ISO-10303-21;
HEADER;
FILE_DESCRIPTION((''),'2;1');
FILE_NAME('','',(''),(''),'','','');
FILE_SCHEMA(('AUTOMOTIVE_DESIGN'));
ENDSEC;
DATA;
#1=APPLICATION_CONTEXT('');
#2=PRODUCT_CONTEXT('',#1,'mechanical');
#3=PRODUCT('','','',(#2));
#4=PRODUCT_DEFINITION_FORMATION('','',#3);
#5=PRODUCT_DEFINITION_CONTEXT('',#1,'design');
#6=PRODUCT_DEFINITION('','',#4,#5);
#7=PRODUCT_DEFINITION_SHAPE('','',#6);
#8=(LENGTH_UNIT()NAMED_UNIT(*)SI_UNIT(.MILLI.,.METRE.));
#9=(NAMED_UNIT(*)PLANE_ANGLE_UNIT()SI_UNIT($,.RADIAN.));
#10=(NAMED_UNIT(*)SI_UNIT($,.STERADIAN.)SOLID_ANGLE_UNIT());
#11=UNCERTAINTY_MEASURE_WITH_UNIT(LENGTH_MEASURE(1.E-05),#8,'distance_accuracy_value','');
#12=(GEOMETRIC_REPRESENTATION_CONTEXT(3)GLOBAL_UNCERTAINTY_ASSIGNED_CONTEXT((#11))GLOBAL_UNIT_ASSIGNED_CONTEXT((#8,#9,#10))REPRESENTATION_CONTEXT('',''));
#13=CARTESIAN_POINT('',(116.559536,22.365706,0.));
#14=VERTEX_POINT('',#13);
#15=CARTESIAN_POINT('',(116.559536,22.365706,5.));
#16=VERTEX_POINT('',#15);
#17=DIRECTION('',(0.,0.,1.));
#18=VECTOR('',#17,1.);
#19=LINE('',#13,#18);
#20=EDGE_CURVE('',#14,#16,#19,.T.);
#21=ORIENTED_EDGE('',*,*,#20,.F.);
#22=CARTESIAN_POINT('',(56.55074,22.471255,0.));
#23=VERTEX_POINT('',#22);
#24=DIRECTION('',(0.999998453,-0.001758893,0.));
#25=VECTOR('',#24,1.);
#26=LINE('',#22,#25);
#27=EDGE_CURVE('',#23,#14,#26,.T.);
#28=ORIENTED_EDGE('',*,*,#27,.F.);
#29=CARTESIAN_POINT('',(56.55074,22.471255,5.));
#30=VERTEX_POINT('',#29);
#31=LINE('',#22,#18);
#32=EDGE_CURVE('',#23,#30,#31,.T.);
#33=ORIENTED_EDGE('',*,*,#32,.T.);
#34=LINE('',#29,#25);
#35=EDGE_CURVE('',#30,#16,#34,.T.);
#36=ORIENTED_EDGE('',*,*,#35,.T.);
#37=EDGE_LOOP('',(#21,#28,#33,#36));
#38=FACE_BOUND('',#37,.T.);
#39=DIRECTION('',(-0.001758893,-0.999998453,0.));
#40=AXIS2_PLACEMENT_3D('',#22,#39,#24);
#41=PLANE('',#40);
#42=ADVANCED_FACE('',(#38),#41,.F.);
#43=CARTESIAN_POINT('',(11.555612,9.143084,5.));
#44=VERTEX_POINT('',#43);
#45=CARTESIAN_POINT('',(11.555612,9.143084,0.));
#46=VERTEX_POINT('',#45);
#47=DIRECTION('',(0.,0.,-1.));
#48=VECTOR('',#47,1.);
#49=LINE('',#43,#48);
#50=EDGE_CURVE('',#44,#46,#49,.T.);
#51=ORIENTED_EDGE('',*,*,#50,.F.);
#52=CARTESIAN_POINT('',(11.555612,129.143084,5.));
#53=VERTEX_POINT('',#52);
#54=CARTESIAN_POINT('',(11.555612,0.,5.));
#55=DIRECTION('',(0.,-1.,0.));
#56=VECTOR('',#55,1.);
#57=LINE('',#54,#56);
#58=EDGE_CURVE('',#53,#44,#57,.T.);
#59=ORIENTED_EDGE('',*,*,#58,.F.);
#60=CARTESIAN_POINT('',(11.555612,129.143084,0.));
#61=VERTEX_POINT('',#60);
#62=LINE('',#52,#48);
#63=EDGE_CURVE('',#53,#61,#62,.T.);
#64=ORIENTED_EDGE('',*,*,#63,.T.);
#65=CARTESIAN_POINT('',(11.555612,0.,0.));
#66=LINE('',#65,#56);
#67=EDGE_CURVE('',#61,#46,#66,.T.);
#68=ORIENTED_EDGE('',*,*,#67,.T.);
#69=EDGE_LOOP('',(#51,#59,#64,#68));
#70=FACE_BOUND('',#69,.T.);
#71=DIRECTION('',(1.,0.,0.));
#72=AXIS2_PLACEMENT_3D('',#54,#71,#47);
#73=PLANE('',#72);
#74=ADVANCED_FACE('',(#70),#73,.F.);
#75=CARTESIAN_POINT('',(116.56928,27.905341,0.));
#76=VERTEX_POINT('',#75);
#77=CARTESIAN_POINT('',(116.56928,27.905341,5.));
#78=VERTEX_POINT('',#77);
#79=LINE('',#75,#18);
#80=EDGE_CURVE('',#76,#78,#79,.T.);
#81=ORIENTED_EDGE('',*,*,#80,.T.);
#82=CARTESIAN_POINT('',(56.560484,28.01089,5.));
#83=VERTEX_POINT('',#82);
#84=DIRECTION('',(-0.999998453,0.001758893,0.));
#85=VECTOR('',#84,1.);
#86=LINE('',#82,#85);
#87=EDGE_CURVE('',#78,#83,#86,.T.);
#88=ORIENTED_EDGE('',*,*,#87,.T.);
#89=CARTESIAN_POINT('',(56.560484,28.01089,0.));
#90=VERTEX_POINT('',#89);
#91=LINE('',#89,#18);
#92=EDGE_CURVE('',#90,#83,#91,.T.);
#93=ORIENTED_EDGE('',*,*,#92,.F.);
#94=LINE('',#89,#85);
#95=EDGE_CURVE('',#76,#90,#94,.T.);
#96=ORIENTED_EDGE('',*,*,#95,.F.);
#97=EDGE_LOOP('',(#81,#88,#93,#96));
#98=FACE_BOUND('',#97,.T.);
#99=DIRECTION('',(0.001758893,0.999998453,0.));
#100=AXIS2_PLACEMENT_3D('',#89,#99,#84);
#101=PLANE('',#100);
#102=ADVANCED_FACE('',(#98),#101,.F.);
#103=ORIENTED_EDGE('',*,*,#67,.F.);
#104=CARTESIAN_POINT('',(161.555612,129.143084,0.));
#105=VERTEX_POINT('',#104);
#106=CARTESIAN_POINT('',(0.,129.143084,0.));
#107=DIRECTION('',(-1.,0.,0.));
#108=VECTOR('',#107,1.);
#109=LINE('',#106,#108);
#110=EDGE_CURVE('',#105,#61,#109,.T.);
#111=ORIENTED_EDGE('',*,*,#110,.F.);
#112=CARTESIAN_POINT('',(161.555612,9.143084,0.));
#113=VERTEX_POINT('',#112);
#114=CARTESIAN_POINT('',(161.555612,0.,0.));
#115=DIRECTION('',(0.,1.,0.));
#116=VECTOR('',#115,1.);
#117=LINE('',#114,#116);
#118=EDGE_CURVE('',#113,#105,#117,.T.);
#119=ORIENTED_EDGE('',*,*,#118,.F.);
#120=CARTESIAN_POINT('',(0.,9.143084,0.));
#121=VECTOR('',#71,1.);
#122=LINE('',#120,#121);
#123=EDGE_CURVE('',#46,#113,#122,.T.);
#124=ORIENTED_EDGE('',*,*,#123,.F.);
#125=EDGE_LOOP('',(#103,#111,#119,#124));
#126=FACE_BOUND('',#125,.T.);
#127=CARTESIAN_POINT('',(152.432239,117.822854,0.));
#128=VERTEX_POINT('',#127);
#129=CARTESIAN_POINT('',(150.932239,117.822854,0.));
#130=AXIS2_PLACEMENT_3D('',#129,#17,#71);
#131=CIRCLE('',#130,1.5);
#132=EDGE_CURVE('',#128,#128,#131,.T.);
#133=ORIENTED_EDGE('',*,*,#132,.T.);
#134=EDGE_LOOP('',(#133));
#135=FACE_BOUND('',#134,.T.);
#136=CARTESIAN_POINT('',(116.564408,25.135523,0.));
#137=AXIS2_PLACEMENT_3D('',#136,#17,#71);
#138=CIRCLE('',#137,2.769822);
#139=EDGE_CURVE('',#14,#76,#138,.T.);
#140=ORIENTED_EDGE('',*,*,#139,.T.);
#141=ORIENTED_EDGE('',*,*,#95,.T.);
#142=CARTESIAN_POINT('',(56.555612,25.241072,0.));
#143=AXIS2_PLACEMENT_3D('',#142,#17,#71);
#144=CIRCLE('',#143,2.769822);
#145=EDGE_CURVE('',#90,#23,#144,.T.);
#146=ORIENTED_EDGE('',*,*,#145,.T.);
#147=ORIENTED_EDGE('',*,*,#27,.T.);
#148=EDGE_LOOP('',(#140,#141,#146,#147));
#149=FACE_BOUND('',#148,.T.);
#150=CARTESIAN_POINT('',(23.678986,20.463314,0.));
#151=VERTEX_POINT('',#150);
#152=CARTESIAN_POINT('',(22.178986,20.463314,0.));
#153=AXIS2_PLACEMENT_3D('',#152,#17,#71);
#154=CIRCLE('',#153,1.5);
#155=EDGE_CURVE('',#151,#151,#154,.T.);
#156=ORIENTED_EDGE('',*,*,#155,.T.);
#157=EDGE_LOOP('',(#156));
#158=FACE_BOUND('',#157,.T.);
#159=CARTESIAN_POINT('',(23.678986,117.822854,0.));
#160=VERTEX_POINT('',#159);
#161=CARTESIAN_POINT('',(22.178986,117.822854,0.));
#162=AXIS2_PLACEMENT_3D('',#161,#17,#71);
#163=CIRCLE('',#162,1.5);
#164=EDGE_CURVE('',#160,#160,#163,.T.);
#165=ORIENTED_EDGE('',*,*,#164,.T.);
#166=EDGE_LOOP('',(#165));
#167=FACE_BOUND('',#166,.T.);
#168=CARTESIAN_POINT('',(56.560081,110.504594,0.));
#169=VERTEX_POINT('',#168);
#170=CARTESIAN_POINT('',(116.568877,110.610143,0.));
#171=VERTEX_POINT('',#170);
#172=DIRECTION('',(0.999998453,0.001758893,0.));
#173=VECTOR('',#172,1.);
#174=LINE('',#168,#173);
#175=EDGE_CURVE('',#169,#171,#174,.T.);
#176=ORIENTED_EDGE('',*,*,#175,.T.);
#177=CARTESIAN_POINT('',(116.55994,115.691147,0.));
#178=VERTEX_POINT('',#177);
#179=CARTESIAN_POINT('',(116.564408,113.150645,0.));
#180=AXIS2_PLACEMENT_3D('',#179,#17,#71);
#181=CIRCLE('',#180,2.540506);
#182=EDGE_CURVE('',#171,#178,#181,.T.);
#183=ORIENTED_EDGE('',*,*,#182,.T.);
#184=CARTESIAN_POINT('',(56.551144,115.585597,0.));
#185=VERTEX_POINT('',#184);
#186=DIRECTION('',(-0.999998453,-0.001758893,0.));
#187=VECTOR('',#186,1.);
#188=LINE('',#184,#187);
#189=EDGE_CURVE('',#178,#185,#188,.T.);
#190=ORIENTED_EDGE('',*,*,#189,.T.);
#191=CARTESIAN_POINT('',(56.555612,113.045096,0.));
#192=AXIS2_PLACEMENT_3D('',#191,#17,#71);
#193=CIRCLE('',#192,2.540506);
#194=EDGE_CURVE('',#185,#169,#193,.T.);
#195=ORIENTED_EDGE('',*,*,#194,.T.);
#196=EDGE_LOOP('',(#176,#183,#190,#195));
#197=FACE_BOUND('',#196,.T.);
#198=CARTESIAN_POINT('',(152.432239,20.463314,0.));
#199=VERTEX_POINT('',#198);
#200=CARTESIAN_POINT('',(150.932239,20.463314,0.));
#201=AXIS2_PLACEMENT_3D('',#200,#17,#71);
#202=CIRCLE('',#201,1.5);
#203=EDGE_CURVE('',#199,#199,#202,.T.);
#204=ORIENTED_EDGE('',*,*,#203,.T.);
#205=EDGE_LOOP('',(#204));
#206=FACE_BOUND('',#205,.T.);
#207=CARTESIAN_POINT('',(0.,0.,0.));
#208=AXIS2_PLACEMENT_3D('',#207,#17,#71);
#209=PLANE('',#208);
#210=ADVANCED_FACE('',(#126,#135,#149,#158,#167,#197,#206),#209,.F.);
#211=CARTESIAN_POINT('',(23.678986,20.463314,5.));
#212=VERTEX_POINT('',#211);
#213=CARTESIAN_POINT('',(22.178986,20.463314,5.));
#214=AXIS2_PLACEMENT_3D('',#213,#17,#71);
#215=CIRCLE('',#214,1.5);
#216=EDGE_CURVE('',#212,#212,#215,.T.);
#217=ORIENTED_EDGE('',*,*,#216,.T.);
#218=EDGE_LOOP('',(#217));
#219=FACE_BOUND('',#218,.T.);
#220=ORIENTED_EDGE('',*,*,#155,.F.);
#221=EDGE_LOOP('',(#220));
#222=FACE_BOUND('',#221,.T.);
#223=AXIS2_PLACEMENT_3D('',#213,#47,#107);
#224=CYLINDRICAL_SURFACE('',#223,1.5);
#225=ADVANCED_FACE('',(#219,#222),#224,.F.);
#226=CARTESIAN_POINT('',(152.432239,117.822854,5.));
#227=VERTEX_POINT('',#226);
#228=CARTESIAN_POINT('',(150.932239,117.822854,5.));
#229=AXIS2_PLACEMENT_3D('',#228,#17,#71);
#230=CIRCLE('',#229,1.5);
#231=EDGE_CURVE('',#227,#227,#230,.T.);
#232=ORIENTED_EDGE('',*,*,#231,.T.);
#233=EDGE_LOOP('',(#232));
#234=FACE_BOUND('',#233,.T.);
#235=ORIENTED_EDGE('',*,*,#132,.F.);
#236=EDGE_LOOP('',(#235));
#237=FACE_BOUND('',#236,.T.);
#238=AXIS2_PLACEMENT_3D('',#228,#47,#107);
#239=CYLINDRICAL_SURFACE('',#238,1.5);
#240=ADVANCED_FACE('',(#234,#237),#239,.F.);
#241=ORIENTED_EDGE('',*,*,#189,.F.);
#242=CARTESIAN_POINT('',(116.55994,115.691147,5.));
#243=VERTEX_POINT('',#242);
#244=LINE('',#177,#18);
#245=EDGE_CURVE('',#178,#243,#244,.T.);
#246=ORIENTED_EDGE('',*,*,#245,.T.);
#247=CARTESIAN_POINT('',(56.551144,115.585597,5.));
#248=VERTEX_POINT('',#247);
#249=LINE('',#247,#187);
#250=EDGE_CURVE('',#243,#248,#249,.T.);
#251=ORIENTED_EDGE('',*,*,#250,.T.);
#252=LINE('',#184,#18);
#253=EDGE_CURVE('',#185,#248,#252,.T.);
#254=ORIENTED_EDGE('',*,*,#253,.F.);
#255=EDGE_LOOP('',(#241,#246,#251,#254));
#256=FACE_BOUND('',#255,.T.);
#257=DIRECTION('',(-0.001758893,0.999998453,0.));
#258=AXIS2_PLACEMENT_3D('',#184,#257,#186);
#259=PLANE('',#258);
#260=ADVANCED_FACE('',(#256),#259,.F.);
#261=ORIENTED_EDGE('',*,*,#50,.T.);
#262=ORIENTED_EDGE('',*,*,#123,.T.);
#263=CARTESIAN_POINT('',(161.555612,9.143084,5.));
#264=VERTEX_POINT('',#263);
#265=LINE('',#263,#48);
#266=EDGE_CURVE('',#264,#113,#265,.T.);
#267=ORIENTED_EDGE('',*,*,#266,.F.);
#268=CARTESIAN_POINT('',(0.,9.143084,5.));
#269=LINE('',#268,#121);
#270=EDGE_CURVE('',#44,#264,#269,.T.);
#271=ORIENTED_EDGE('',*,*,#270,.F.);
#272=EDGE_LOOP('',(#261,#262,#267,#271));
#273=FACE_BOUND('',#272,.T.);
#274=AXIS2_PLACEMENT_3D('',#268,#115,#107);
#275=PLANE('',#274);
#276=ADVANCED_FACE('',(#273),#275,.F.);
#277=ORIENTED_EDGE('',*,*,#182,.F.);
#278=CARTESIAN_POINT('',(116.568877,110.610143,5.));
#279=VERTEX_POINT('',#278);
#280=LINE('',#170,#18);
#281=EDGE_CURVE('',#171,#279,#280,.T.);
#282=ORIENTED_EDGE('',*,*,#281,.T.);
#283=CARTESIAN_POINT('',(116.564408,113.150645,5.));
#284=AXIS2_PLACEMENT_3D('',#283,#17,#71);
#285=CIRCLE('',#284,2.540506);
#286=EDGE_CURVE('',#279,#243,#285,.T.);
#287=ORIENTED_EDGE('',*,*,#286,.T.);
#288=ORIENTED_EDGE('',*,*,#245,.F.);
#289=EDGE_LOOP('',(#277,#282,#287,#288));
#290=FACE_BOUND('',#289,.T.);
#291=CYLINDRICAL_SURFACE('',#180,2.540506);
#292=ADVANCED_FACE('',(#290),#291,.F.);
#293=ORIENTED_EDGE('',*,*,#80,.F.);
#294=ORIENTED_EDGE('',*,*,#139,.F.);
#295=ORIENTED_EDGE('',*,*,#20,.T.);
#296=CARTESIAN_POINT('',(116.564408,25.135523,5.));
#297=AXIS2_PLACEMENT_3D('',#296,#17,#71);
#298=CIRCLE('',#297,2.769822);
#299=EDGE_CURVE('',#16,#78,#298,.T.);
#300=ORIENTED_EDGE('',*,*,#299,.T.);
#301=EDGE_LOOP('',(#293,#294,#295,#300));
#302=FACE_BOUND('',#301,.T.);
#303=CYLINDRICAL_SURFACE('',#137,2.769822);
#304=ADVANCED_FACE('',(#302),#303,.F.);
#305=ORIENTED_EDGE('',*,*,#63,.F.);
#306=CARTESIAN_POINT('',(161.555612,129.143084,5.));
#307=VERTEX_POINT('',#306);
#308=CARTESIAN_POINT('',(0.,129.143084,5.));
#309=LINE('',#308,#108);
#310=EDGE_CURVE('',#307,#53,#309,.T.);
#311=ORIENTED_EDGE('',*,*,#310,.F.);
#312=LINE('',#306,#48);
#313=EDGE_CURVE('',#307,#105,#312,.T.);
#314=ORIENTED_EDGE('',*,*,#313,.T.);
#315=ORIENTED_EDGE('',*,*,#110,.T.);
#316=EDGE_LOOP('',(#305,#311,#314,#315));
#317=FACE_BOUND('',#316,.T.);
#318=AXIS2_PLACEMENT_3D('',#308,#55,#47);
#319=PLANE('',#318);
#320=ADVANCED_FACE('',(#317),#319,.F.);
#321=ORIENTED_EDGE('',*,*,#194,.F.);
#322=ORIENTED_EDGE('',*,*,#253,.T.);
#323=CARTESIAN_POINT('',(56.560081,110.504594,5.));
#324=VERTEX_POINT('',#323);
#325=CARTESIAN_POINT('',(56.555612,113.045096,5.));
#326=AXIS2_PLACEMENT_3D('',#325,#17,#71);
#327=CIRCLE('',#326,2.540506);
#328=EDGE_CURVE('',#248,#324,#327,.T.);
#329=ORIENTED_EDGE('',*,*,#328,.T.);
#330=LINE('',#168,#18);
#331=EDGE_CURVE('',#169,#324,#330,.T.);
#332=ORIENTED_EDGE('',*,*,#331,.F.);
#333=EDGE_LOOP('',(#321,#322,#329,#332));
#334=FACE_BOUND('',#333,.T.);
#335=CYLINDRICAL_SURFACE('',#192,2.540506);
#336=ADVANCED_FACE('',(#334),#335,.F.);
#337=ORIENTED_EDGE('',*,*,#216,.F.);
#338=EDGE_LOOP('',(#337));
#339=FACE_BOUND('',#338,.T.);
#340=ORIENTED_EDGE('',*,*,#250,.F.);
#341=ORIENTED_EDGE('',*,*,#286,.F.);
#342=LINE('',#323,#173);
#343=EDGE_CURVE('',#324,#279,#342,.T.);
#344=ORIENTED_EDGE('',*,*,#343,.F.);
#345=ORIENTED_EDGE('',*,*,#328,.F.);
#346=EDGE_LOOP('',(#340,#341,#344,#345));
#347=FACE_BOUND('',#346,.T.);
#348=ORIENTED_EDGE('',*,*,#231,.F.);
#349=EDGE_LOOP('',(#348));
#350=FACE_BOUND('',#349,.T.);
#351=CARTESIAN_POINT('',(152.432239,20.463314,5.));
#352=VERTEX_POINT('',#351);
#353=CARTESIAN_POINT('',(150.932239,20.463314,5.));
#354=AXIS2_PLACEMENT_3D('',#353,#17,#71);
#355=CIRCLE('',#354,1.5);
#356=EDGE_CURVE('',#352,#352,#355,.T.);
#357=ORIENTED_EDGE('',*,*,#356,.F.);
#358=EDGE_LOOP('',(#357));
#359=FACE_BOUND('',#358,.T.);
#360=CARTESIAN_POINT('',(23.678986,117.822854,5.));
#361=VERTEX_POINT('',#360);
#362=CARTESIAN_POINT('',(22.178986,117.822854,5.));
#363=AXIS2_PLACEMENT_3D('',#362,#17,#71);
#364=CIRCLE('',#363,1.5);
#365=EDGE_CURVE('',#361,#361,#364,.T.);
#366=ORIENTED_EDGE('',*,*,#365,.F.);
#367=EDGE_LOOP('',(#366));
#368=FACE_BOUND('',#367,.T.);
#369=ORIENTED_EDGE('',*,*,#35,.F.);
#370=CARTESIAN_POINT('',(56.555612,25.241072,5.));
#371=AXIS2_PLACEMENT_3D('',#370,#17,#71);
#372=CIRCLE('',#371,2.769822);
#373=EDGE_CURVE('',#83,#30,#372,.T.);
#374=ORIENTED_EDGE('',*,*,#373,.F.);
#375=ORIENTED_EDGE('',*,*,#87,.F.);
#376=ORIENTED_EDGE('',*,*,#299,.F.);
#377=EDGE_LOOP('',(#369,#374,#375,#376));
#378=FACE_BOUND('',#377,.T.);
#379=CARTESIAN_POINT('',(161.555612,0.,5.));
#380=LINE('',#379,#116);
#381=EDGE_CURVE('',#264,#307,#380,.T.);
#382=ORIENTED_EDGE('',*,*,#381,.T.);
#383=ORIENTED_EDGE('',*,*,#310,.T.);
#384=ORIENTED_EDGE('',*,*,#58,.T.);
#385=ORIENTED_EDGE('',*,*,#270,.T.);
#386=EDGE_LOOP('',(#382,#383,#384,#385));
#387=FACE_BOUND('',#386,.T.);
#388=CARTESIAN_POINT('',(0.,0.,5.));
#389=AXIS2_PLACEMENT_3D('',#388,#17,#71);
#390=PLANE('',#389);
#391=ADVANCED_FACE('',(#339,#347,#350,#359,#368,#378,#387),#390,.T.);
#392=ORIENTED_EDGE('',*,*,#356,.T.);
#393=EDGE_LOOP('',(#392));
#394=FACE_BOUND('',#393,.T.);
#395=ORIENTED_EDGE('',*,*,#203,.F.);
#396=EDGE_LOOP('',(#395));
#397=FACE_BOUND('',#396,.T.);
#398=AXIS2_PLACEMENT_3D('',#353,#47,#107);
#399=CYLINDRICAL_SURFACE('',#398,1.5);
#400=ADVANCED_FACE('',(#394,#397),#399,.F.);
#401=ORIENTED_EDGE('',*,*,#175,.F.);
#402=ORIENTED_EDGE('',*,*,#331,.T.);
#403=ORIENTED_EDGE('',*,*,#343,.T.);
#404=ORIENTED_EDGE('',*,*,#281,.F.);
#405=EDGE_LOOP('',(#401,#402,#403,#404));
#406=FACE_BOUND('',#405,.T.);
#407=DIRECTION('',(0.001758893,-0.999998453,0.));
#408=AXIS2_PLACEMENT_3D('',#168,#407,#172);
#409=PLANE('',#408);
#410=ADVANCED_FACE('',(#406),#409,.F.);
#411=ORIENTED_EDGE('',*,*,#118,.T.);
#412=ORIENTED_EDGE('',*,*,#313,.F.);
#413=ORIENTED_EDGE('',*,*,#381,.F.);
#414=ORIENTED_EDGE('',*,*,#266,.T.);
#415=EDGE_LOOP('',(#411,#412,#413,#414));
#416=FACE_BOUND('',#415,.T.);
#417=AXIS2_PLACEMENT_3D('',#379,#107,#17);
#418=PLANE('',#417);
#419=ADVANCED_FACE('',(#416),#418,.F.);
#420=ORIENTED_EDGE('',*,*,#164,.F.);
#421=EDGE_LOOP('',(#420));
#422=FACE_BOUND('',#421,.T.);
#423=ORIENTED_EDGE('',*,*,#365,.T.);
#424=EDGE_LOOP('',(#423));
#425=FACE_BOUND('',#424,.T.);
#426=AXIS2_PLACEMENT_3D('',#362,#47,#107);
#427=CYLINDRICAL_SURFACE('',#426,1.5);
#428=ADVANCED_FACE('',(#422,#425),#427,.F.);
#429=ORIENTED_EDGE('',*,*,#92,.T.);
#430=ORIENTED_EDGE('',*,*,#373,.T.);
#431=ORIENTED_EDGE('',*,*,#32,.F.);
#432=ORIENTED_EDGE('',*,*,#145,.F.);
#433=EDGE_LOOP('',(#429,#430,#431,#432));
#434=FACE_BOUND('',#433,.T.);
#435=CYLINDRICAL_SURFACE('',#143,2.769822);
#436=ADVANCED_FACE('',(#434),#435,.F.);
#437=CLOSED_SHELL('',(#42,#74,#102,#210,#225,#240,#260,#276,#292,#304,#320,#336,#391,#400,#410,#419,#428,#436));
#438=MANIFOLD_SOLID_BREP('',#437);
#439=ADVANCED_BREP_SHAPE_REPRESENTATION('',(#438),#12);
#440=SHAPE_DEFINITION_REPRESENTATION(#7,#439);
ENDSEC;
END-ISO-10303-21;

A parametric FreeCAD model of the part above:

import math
import FreeCAD as App
import Part
import Sketcher

V = App.Vector

doc = App.newDocument("Part")
body = doc.addObject("PartDesign::Body", "Body")

# Sketch on XY plane
sketch1 = doc.addObject("Sketcher::SketchObject", "Sketch")
body.addObject(sketch1)
sketch1.AttachmentSupport = (doc.XY_Plane, [""])
sketch1.MapMode = "FlatFace"
sketch1.addGeometry([
    Part.LineSegment(V(11.6, 129.1, 0), V(11.6, 9.1, 0)),  # 0
    Part.LineSegment(V(11.6, 9.1, 0), V(161.6, 9.1, 0)),  # 1
    Part.LineSegment(V(161.6, 9.1, 0), V(161.6, 129.1, 0)),  # 2
    Part.LineSegment(V(161.6, 129.1, 0), V(11.6, 129.1, 0)),  # 3
    Part.Circle(V(22.2, 20.5, 0), V(0, 0, 1), 1.5),  # 4
    Part.Circle(V(150.9, 20.5, 0), V(0, 0, 1), 1.5),  # 5
    Part.Circle(V(22.2, 117.8, 0), V(0, 0, 1), 1.5),  # 6
    Part.Circle(V(150.9, 117.8, 0), V(0, 0, 1), 1.5),  # 7
], False)
sketch1.addConstraint([
    Sketcher.Constraint("Coincident", 0, 2, 1, 1),
    Sketcher.Constraint("Coincident", 1, 2, 2, 1),
    Sketcher.Constraint("Coincident", 2, 2, 3, 1),
    Sketcher.Constraint("Coincident", 3, 2, 0, 1),
    Sketcher.Constraint("Vertical", 0),
    Sketcher.Constraint("Horizontal", 1),
    Sketcher.Constraint("Vertical", 2),
    Sketcher.Constraint("Horizontal", 3),
    Sketcher.Constraint("Equal", 4, 5),
    Sketcher.Constraint("Equal", 5, 6),
    Sketcher.Constraint("Equal", 6, 7),
    Sketcher.Constraint("Horizontal", 4, 3, 5, 3),
    Sketcher.Constraint("Horizontal", 6, 3, 7, 3),
    Sketcher.Constraint("Vertical", 4, 3, 6, 3),
    Sketcher.Constraint("Vertical", 5, 3, 7, 3),
    Sketcher.Constraint("Diameter", 4, 3.0),
    Sketcher.Constraint("DistanceX", 1, 1, 1, 2, 150.0),
    Sketcher.Constraint("DistanceY", 0, 2, 0, 1, 120.0),
    Sketcher.Constraint("DistanceX", -1, 1, 5, 3, 150.932239),
    Sketcher.Constraint("DistanceY", 4, 3, 6, 3, 97.35954),
    Sketcher.Constraint("DistanceY", 0, 2, 4, 3, 11.32023),
    Sketcher.Constraint("DistanceX", -1, 1, 4, 3, 22.178986),
    Sketcher.Constraint("DistanceY", -1, 1, 4, 3, 20.463314),
    Sketcher.Constraint("DistanceX", -1, 1, 0, 2, 11.555612),
])
pad1 = doc.addObject("PartDesign::Pad", "Pad")
body.addObject(pad1)
pad1.Profile = sketch1
pad1.Length = 5

# Sketch on XY plane
sketch2 = doc.addObject("Sketcher::SketchObject", "Sketch001")
body.addObject(sketch2)
sketch2.AttachmentSupport = (doc.XY_Plane, [""])
sketch2.MapMode = "FlatFace"
sketch2.AttachmentOffset = App.Placement(V(0, 0, 5), App.Rotation())
sketch2.addGeometry([
    Part.LineSegment(V(116.6, 115.7, 0), V(56.6, 115.6, 0)),  # 0
    Part.ArcOfCircle(Part.Circle(V(56.6, 113, 0), V(0, 0, 1), 2.5), math.radians(90), math.radians(270)),  # 1
    Part.LineSegment(V(56.6, 110.5, 0), V(116.6, 110.6, 0)),  # 2
    Part.ArcOfCircle(Part.Circle(V(116.6, 113.2, 0), V(0, 0, 1), 2.5), math.radians(-90), math.radians(90)),  # 3
    Part.LineSegment(V(116.6, 27.9, 0), V(56.6, 28, 0)),  # 4
    Part.ArcOfCircle(Part.Circle(V(56.6, 25.2, 0), V(0, 0, 1), 2.8), math.radians(90), math.radians(270)),  # 5
    Part.LineSegment(V(56.6, 22.5, 0), V(116.6, 22.4, 0)),  # 6
    Part.ArcOfCircle(Part.Circle(V(116.6, 25.1, 0), V(0, 0, 1), 2.8), math.radians(-90), math.radians(90)),  # 7
], False)
sketch2.addConstraint([
    Sketcher.Constraint("Tangent", 0, 2, 1, 1),
    Sketcher.Constraint("Tangent", 1, 2, 2, 1),
    Sketcher.Constraint("Tangent", 2, 2, 3, 1),
    Sketcher.Constraint("Tangent", 3, 2, 0, 1),
    Sketcher.Constraint("Tangent", 4, 2, 5, 1),
    Sketcher.Constraint("Tangent", 5, 2, 6, 1),
    Sketcher.Constraint("Tangent", 6, 2, 7, 1),
    Sketcher.Constraint("Tangent", 7, 2, 4, 1),
    Sketcher.Constraint("Equal", 1, 3),
    Sketcher.Constraint("Equal", 5, 7),
    Sketcher.Constraint("Vertical", 1, 3, 5, 3),
    Sketcher.Constraint("Vertical", 3, 3, 7, 3),
    Sketcher.Constraint("Radius", 5, 2.769822),
    Sketcher.Constraint("Radius", 1, 2.540506),
    Sketcher.Constraint("Distance", 0, 60.008889),
    Sketcher.Constraint("DistanceX", -1, 1, 3, 3, 116.564408),
    Sketcher.Constraint("DistanceX", -1, 1, 1, 2, 56.560081),
    Sketcher.Constraint("DistanceY", -1, 1, 4, 2, 28.01089),
    Sketcher.Constraint("DistanceX", -1, 1, 5, 2, 56.55074),
    Sketcher.Constraint("DistanceY", 7, 3, 3, 3, 88.015122),
])
pocket1 = doc.addObject("PartDesign::Pocket", "Pocket")
body.addObject(pocket1)
pocket1.Profile = sketch2
pocket1.Type = "ThroughAll"

doc.recompute()
